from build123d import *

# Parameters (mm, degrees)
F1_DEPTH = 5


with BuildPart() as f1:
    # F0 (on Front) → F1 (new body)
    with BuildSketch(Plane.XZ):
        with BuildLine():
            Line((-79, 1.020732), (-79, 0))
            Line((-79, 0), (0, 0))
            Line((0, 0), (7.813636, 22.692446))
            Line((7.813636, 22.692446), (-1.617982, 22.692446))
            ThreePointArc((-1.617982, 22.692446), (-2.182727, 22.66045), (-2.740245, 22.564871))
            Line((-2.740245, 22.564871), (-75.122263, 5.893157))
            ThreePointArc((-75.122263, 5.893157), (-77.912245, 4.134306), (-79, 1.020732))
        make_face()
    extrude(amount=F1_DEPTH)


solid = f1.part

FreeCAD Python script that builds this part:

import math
import FreeCAD as App
import Part
import Sketcher
Q = App.Units.Quantity

doc = App.newDocument("Part")
body = doc.addObject("PartDesign::Body", "Body")

# Sketch on XZ plane
sketch1 = doc.addObject("Sketcher::SketchObject", "Sketch")
body.addObject(sketch1)
sketch1.AttachmentSupport = (doc.XZ_Plane, [""])
sketch1.MapMode = "FlatFace"
sketch1.addGeometry(Part.LineSegment(App.Vector(-79, 1.020732, 0), App.Vector(-79, 0, 0)), False)
sketch1.addGeometry(Part.LineSegment(App.Vector(-79, 0, 0), App.Vector(0, 0, 0)), False)
sketch1.addGeometry(Part.LineSegment(App.Vector(0, 0, 0), App.Vector(7.813636, 22.692446, 0)), False)
sketch1.addGeometry(Part.LineSegment(App.Vector(7.813636, 22.692446, 0), App.Vector(-1.617982, 22.692446, 0)), False)
sketch1.addGeometry(Part.ArcOfCircle(Part.Circle(App.Vector(-1.617983, 17.692459, 0), App.Vector(0, 0, 1), 4.999987), math.radians(89.999985), math.radians(102.97071)), False)
sketch1.addGeometry(Part.LineSegment(App.Vector(-2.740245, 22.564871, 0), App.Vector(-75.122263, 5.893157, 0)), False)
sketch1.addGeometry(Part.ArcOfCircle(Part.Circle(App.Vector(-74.000002, 1.020733, 0), App.Vector(0, 0, 1), 4.999998), math.radians(102.970677), math.radians(180.000013)), False)
sketch1.addConstraint(Sketcher.Constraint("Coincident", 0, 2, 1, 1))
sketch1.addConstraint(Sketcher.Constraint("Coincident", 1, 2, 2, 1))
sketch1.addConstraint(Sketcher.Constraint("Coincident", 2, 2, 3, 1))
sketch1.addConstraint(Sketcher.Constraint("Coincident", 3, 2, 4, 1))
sketch1.addConstraint(Sketcher.Constraint("Coincident", 4, 2, 5, 1))
sketch1.addConstraint(Sketcher.Constraint("Coincident", 5, 2, 6, 1))
sketch1.addConstraint(Sketcher.Constraint("Coincident", 6, 2, 0, 1))
sketch1.addConstraint(Sketcher.Constraint("Vertical", 0))
sketch1.addConstraint(Sketcher.Constraint("Horizontal", 1))
sketch1.addConstraint(Sketcher.Constraint("Horizontal", 3))
sketch1.addConstraint(Sketcher.Constraint("Coincident", 1, 2, -1, 1))
sketch1.addConstraint(Sketcher.Constraint("Radius", 6, Q("4.999998 mm")))
sketch1.addConstraint(Sketcher.Constraint("DistanceX", 1, 1, 1, 2, Q("79 mm")))
sketch1.addConstraint(Sketcher.Constraint("Distance", 2, Q("24 mm")))
sketch1.addConstraint(Sketcher.Constraint("Radius", 4, Q("4.999987 mm")))
sketch1.addConstraint(Sketcher.Constraint("Distance", 5, Q("74.277201 mm")))
sketch1.addConstraint(Sketcher.Constraint("DistanceX", 3, 2, 3, 1, Q("9.431618 mm")))
sketch1.addConstraint(Sketcher.Constraint("DistanceY", 0, 2, 0, 1, Q("1.020732 mm")))
sketch1.addConstraint(Sketcher.Constraint("DistanceY", -1, 1, 4, 3, Q("17.692459 mm")))
sketch1.addConstraint(Sketcher.Constraint("DistanceY", -1, 1, 4, 2, Q("22.564871 mm")))
sketch1.addConstraint(Sketcher.Constraint("DistanceX", 6, 3, 4, 3, Q("72.382018 mm")))
sketch1.addConstraint(Sketcher.Constraint("DistanceX", 5, 2, 6, 3, Q("1.122261 mm")))
pad1 = doc.addObject("PartDesign::Pad", "Pad")
body.addObject(pad1)
pad1.Profile = sketch1
pad1.Length = 5

doc.recompute()
